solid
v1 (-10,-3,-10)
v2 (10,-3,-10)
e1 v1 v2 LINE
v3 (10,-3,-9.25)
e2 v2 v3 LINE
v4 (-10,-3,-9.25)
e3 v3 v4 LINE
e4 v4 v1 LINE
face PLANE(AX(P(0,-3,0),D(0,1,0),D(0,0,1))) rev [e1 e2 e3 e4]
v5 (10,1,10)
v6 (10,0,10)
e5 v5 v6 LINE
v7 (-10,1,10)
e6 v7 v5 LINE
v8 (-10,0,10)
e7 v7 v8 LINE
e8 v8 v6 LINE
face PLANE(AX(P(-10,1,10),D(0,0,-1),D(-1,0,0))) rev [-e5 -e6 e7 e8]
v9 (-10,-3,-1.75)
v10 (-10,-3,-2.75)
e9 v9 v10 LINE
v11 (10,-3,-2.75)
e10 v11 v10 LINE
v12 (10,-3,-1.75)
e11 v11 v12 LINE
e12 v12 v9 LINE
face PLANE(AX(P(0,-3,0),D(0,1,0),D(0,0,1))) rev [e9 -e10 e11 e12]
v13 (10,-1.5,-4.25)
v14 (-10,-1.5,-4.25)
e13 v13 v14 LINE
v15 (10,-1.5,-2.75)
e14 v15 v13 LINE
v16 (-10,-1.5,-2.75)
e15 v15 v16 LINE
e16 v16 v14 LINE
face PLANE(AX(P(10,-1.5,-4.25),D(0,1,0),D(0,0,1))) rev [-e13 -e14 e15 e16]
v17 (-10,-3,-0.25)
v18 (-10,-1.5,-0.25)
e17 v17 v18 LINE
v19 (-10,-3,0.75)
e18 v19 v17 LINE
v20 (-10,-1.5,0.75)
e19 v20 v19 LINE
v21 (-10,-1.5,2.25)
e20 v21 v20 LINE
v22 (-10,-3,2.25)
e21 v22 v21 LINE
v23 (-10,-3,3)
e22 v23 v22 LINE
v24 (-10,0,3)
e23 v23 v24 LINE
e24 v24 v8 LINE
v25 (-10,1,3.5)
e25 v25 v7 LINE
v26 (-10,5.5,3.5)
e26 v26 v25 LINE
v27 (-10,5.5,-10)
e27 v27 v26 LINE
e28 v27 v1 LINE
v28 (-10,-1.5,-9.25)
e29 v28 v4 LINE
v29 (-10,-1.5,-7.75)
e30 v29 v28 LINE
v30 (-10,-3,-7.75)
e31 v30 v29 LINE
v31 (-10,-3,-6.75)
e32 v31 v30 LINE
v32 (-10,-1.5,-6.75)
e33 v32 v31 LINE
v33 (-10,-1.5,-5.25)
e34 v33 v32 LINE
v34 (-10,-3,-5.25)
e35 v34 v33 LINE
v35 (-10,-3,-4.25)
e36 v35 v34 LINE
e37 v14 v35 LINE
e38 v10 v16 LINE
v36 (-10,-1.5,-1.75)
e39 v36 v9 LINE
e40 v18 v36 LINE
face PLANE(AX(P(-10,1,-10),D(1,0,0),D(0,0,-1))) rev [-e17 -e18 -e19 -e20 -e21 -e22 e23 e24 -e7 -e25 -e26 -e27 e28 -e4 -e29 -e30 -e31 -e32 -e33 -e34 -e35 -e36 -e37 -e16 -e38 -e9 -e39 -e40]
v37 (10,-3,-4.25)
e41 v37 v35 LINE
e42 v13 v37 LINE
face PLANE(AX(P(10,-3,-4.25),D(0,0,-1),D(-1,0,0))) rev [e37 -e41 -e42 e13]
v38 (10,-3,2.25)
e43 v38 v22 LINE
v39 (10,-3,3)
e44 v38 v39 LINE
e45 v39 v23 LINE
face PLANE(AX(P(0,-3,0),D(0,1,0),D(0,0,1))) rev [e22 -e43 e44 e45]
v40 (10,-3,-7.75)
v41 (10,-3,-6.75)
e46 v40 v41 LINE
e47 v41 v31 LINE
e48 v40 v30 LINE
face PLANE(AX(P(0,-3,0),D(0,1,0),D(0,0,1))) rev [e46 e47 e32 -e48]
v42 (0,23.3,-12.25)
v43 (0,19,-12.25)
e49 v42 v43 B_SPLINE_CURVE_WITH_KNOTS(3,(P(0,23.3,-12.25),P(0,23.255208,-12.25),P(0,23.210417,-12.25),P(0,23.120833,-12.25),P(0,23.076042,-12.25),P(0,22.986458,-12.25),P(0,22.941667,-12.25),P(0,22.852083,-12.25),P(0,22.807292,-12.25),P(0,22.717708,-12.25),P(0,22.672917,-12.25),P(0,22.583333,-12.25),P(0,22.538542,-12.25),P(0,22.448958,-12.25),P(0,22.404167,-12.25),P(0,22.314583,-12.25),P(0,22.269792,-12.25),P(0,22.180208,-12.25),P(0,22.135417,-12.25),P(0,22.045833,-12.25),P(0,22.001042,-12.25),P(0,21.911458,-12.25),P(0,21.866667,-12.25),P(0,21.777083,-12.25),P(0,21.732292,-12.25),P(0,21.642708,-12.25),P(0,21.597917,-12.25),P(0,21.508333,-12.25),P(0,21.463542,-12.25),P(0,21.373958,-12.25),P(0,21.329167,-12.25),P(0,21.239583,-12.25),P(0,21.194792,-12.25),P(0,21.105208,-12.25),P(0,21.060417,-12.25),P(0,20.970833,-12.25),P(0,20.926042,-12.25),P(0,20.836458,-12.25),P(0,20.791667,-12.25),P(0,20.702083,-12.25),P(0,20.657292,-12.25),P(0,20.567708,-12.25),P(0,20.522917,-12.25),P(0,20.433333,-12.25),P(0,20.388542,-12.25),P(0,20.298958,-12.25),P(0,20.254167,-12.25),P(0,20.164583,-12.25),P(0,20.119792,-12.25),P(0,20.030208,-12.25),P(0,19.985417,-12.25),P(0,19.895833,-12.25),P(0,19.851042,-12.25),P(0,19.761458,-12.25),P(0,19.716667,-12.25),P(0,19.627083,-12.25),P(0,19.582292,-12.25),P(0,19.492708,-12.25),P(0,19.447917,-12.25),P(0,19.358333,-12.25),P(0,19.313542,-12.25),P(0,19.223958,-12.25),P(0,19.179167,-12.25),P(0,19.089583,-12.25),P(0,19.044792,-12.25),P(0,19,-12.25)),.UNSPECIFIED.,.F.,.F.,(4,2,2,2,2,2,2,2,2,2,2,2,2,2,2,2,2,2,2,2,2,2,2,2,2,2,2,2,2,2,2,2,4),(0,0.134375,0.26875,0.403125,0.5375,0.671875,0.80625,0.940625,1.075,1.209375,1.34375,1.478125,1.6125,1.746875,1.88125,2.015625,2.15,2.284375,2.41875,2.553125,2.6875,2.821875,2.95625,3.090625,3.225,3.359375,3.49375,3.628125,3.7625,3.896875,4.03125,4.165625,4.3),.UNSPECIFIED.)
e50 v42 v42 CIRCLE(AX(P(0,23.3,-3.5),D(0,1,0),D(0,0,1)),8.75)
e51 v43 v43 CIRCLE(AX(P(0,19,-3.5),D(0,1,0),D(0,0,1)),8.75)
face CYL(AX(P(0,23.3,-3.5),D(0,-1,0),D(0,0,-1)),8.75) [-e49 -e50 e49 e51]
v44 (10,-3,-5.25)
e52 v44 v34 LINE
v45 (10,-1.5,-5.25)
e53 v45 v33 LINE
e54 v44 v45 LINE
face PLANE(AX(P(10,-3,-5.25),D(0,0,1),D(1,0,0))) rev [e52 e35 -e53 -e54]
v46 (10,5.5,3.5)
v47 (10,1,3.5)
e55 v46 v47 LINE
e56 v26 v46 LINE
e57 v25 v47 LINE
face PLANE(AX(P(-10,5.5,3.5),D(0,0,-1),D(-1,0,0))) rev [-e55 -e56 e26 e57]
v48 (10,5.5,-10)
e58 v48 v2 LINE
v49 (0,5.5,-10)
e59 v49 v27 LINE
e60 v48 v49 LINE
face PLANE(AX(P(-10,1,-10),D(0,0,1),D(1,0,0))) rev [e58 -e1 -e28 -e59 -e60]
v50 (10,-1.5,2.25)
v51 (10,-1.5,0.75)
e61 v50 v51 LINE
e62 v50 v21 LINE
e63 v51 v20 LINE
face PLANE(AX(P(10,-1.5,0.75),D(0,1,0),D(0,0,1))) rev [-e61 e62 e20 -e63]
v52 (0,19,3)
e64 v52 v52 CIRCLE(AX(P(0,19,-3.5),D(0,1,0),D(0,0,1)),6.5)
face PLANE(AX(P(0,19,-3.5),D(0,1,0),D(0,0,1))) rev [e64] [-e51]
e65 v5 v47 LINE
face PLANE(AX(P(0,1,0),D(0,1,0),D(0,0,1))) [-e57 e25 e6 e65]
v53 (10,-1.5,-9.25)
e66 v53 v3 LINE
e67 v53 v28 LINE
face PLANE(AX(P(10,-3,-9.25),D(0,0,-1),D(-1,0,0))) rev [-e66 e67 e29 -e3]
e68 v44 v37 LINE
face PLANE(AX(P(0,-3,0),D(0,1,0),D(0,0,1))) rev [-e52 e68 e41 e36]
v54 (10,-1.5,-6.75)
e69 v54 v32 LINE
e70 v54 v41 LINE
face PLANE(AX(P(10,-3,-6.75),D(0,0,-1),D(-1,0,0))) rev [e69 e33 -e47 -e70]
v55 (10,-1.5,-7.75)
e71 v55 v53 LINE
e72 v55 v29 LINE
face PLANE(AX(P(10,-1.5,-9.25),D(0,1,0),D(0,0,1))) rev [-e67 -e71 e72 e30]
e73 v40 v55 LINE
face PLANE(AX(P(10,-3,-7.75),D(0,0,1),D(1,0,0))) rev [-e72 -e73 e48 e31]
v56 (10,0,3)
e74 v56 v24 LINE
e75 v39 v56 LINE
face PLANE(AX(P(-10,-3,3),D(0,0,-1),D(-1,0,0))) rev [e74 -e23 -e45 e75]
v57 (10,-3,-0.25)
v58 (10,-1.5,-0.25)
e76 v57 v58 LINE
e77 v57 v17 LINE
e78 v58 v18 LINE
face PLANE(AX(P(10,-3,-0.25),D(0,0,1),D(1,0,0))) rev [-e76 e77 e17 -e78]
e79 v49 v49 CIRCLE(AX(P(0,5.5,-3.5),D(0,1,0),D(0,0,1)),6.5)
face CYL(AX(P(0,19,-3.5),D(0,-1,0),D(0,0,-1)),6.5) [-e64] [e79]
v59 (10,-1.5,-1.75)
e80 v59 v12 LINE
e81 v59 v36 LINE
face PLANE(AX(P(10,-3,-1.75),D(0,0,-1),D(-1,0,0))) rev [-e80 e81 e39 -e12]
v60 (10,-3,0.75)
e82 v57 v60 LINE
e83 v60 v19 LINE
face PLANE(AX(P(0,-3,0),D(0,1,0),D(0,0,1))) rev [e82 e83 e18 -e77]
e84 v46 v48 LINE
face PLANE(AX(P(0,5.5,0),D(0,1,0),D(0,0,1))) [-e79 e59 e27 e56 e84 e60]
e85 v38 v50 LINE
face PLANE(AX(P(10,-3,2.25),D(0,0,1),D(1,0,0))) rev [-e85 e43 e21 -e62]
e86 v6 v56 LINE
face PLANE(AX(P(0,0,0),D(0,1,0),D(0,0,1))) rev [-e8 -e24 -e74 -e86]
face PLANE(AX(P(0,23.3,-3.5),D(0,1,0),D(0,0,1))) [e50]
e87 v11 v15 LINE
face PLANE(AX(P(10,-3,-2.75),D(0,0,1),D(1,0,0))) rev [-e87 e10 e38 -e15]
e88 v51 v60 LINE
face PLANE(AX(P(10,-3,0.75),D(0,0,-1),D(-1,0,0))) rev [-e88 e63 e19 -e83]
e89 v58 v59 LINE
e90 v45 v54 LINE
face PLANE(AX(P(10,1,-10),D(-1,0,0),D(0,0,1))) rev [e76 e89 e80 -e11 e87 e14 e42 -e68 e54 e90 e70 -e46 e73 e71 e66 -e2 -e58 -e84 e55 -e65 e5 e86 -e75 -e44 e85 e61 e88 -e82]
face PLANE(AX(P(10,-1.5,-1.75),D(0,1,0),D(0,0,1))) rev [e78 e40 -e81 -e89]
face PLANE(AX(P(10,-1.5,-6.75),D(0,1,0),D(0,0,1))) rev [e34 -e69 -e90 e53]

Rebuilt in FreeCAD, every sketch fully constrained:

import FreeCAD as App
import Part
import Sketcher
from FreeCAD import Vector

doc = App.newDocument("Part")
body = doc.addObject("PartDesign::Body", "Body")

sketch1 = body.newObject("Sketcher::SketchObject", "Sketch")
sketch1.AttachmentSupport = (doc.getObject("XZ_Plane"), [""])
sketch1.MapMode = "FlatFace"
sketch1.addGeometry([
    Part.LineSegment(Vector(-10, -10, 0), Vector(-10, 10, 0)),
    Part.LineSegment(Vector(-10, 10, 0), Vector(10, 10, 0)),
    Part.LineSegment(Vector(10, 10, 0), Vector(10, -10, 0)),
    Part.LineSegment(Vector(10, -10, 0), Vector(-10, -10, 0)),
], False)
sketch1.addConstraint([
    Sketcher.Constraint("Coincident", 0, 2, 1, 1),
    Sketcher.Constraint("Coincident", 1, 2, 2, 1),
    Sketcher.Constraint("Coincident", 2, 2, 3, 1),
    Sketcher.Constraint("Coincident", 3, 2, 0, 1),
    Sketcher.Constraint("Vertical", 0),
    Sketcher.Constraint("Horizontal", 1),
    Sketcher.Constraint("Vertical", 2),
    Sketcher.Constraint("Horizontal", 3),
    Sketcher.Constraint("Symmetric", 0, 2, 2, 2, -1, 1),
    Sketcher.Constraint("Equal", 3, 0),
    Sketcher.Constraint("DistanceX", 1, 1, 1, 2, 20.0),
])
pad1 = body.newObject("PartDesign::Pad", "Pad")
pad1.Profile = sketch1
pad1.Length = 1
pad1.Reversed = True

sketch2 = body.newObject("Sketcher::SketchObject", "Sketch001")
sketch2.AttachmentSupport = (doc.getObject("XZ_Plane"), [""])
sketch2.MapMode = "FlatFace"
sketch2.addGeometry([
    Part.LineSegment(Vector(-10, 3, 0), Vector(-10, -10, 0)),
    Part.LineSegment(Vector(-10, -10, 0), Vector(10, -10, 0)),
    Part.LineSegment(Vector(10, -10, 0), Vector(10, 3, 0)),
    Part.LineSegment(Vector(10, 3, 0), Vector(-10, 3, 0)),
], False)
sketch2.addConstraint([
    Sketcher.Constraint("Coincident", 0, 2, 1, 1),
    Sketcher.Constraint("Coincident", 1, 2, 2, 1),
    Sketcher.Constraint("Coincident", 2, 2, 3, 1),
    Sketcher.Constraint("Coincident", 3, 2, 0, 1),
    Sketcher.Constraint("Vertical", 0),
    Sketcher.Constraint("Horizontal", 1),
    Sketcher.Constraint("Vertical", 2),
    Sketcher.Constraint("Horizontal", 3),
    Sketcher.Constraint("DistanceX", 1, 1, 1, 2, 20.0),
    Sketcher.Constraint("DistanceY", 0, 2, 0, 1, 13.0),
    Sketcher.Constraint("DistanceX", 0, 2, -1, 1, 10.0),
    Sketcher.Constraint("DistanceY", 0, 2, -1, 1, 10.0),
])
pad2 = body.newObject("PartDesign::Pad", "Pad001")
pad2.Profile = sketch2
pad2.Length = 3

sketch3 = body.newObject("Sketcher::SketchObject", "Sketch002")
sketch3.AttachmentSupport = (doc.getObject("YZ_Plane"), [""])
sketch3.MapMode = "FlatFace"
sketch3.AttachmentOffset = App.Placement(Vector(0, 0, -10), App.Rotation())
sketch3.addGeometry([
    Part.LineSegment(Vector(-1.5, -1.8, 0), Vector(-3, -1.8, 0)),
    Part.LineSegment(Vector(-3, -1.8, 0), Vector(-3, -0.2, 0)),
    Part.LineSegment(Vector(-3, -0.2, 0), Vector(-1.5, -0.2, 0)),
    Part.LineSegment(Vector(-1.5, -0.2, 0), Vector(-1.5, -1.8, 0)),
    Part.LineSegment(Vector(-1.5, -4.2, 0), Vector(-3, -4.2, 0)),
    Part.LineSegment(Vector(-3, -4.2, 0), Vector(-3, -2.8, 0)),
    Part.LineSegment(Vector(-3, -2.8, 0), Vector(-1.5, -2.8, 0)),
    Part.LineSegment(Vector(-1.5, -2.8, 0), Vector(-1.5, -4.2, 0)),
    Part.LineSegment(Vector(-1.5, 0.8, 0), Vector(-3, 0.8, 0)),
    Part.LineSegment(Vector(-3, 0.8, 0), Vector(-3, 2.2, 0)),
    Part.LineSegment(Vector(-3, 2.2, 0), Vector(-1.5, 2.2, 0)),
    Part.LineSegment(Vector(-1.5, 2.2, 0), Vector(-1.5, 0.8, 0)),
    Part.LineSegment(Vector(-1.5, -6.8, 0), Vector(-3, -6.8, 0)),
    Part.LineSegment(Vector(-3, -6.8, 0), Vector(-3, -5.2, 0)),
    Part.LineSegment(Vector(-3, -5.2, 0), Vector(-1.5, -5.2, 0)),
    Part.LineSegment(Vector(-1.5, -5.2, 0), Vector(-1.5, -6.8, 0)),
    Part.LineSegment(Vector(-1.5, -9.2, 0), Vector(-3, -9.2, 0)),
    Part.LineSegment(Vector(-3, -9.2, 0), Vector(-3, -7.8, 0)),
    Part.LineSegment(Vector(-3, -7.8, 0), Vector(-1.5, -7.8, 0)),
    Part.LineSegment(Vector(-1.5, -7.8, 0), Vector(-1.5, -9.2, 0)),
], False)
sketch3.addConstraint([
    Sketcher.Constraint("Coincident", 0, 2, 1, 1),
    Sketcher.Constraint("Coincident", 1, 2, 2, 1),
    Sketcher.Constraint("Coincident", 2, 2, 3, 1),
    Sketcher.Constraint("Coincident", 3, 2, 0, 1),
    Sketcher.Constraint("Coincident", 4, 2, 5, 1),
    Sketcher.Constraint("Coincident", 5, 2, 6, 1),
    Sketcher.Constraint("Coincident", 6, 2, 7, 1),
    Sketcher.Constraint("Coincident", 7, 2, 4, 1),
    Sketcher.Constraint("Coincident", 8, 2, 9, 1),
    Sketcher.Constraint("Coincident", 9, 2, 10, 1),
    Sketcher.Constraint("Coincident", 10, 2, 11, 1),
    Sketcher.Constraint("Coincident", 11, 2, 8, 1),
    Sketcher.Constraint("Coincident", 12, 2, 13, 1),
    Sketcher.Constraint("Coincident", 13, 2, 14, 1),
    Sketcher.Constraint("Coincident", 14, 2, 15, 1),
    Sketcher.Constraint("Coincident", 15, 2, 12, 1),
    Sketcher.Constraint("Coincident", 16, 2, 17, 1),
    Sketcher.Constraint("Coincident", 17, 2, 18, 1),
    Sketcher.Constraint("Coincident", 18, 2, 19, 1),
    Sketcher.Constraint("Coincident", 19, 2, 16, 1),
    Sketcher.Constraint("Horizontal", 0),
    Sketcher.Constraint("Vertical", 1),
    Sketcher.Constraint("Horizontal", 2),
    Sketcher.Constraint("Vertical", 3),
    Sketcher.Constraint("Horizontal", 4),
    Sketcher.Constraint("Vertical", 5),
    Sketcher.Constraint("Horizontal", 6),
    Sketcher.Constraint("Vertical", 7),
    Sketcher.Constraint("Horizontal", 8),
    Sketcher.Constraint("Vertical", 9),
    Sketcher.Constraint("Horizontal", 10),
    Sketcher.Constraint("Vertical", 11),
    Sketcher.Constraint("Horizontal", 12),
    Sketcher.Constraint("Vertical", 13),
    Sketcher.Constraint("Horizontal", 14),
    Sketcher.Constraint("Vertical", 15),
    Sketcher.Constraint("Horizontal", 16),
    Sketcher.Constraint("Vertical", 17),
    Sketcher.Constraint("Horizontal", 18),
    Sketcher.Constraint("Vertical", 19),
    Sketcher.Constraint("Vertical", 1, 2, 4, 2),
    Sketcher.Constraint("Vertical", 3, 2, 6, 2),
    Sketcher.Constraint("Vertical", 5, 2, 8, 2),
    Sketcher.Constraint("Vertical", 7, 2, 10, 2),
    Sketcher.Constraint("Vertical", 9, 2, 12, 2),
    Sketcher.Constraint("Vertical", 11, 2, 14, 2),
    Sketcher.Constraint("Vertical", 13, 2, 16, 2),
    Sketcher.Constraint("Vertical", 15, 2, 18, 2),
    Sketcher.Constraint("Equal", 18, 1),
    Sketcher.Constraint("Equal", 3, 5),
    Sketcher.Constraint("Equal", 7, 9),
    Sketcher.Constraint("Equal", 11, 13),
    Sketcher.Constraint("Equal", 15, 17),
    Sketcher.Constraint("DistanceX", 0, 2, 0, 1, 1.5),
    Sketcher.Constraint("DistanceX", 0, 2, -1, 1, 3.0),
    Sketcher.Constraint("DistanceY", 4, 2, 1, 2, 4.0),
    Sketcher.Constraint("DistanceY", 1, 2, 8, 2, 1.0),
    Sketcher.Constraint("DistanceY", 12, 2, 5, 2, 4.0),
    Sketcher.Constraint("DistanceY", 16, 2, 13, 2, 4.0),
    Sketcher.Constraint("DistanceY", 0, 2, -1, 1, 1.75),
])
pocket1 = body.newObject("PartDesign::Pocket", "Pocket")
pocket1.Profile = sketch3
pocket1.Type = "ThroughAll"
pocket1.Reversed = True

sketch4 = body.newObject("Sketcher::SketchObject", "Sketch003")
sketch4.AttachmentSupport = (doc.getObject("XZ_Plane"), [""])
sketch4.MapMode = "FlatFace"
sketch4.AttachmentOffset = App.Placement(Vector(0, 0, -1), App.Rotation())
sketch4.addGeometry([
    Part.LineSegment(Vector(-10, -10, 0), Vector(-10, 4, 0)),
    Part.LineSegment(Vector(-10, 4, 0), Vector(10, 4, 0)),
    Part.LineSegment(Vector(10, 4, 0), Vector(10, -10, 0)),
    Part.LineSegment(Vector(10, -10, 0), Vector(-10, -10, 0)),
], False)
sketch4.addConstraint([
    Sketcher.Constraint("Coincident", 0, 2, 1, 1),
    Sketcher.Constraint("Coincident", 1, 2, 2, 1),
    Sketcher.Constraint("Coincident", 2, 2, 3, 1),
    Sketcher.Constraint("Coincident", 3, 2, 0, 1),
    Sketcher.Constraint("Vertical", 0),
    Sketcher.Constraint("Horizontal", 1),
    Sketcher.Constraint("Vertical", 2),
    Sketcher.Constraint("Horizontal", 3),
    Sketcher.Constraint("DistanceX", 1, 1, 1, 2, 20.0),
    Sketcher.Constraint("DistanceY", 0, 1, 0, 2, 13.5),
    Sketcher.Constraint("DistanceX", 0, 2, -1, 1, 10.0),
    Sketcher.Constraint("DistanceY", 2, 2, -1, 1, 10.0),
])
pad3 = body.newObject("PartDesign::Pad", "Pad002")
pad3.Profile = sketch4
pad3.Length = 4.5
pad3.Reversed = True

sketch5 = body.newObject("Sketcher::SketchObject", "Sketch004")
sketch5.AttachmentSupport = (doc.getObject("XZ_Plane"), [""])
sketch5.MapMode = "FlatFace"
sketch5.AttachmentOffset = App.Placement(Vector(0, 0, -5.5), App.Rotation())
sketch5.addGeometry(Part.Circle(Vector(0, -4, 0), Vector(0, 0, 1), 6), False)
sketch5.addConstraint([
    Sketcher.Constraint("PointOnObject", 0, 3, -2),
    Sketcher.Constraint("Diameter", 0, 13.0),
    Sketcher.Constraint("DistanceY", 0, 3, -1, 1, 3.5),
])
pad4 = body.newObject("PartDesign::Pad", "Pad003")
pad4.Profile = sketch5
pad4.Length = 13.5
pad4.Reversed = True

sketch6 = body.newObject("Sketcher::SketchObject", "Sketch005")
sketch6.AttachmentSupport = (doc.getObject("XZ_Plane"), [""])
sketch6.MapMode = "FlatFace"
sketch6.AttachmentOffset = App.Placement(Vector(0, 0, -19), App.Rotation())
sketch6.addGeometry(Part.Circle(Vector(0, -4, 0), Vector(0, 0, 1), 9), False)
sketch6.addConstraint([
    Sketcher.Constraint("PointOnObject", 0, 3, -2),
    Sketcher.Constraint("Diameter", 0, 17.5),
    Sketcher.Constraint("DistanceY", 0, 3, -1, 1, 3.5),
])
pad5 = body.newObject("PartDesign::Pad", "Pad004")
pad5.Profile = sketch6
pad5.Length = 4.3
pad5.Reversed = True

doc.recompute()
